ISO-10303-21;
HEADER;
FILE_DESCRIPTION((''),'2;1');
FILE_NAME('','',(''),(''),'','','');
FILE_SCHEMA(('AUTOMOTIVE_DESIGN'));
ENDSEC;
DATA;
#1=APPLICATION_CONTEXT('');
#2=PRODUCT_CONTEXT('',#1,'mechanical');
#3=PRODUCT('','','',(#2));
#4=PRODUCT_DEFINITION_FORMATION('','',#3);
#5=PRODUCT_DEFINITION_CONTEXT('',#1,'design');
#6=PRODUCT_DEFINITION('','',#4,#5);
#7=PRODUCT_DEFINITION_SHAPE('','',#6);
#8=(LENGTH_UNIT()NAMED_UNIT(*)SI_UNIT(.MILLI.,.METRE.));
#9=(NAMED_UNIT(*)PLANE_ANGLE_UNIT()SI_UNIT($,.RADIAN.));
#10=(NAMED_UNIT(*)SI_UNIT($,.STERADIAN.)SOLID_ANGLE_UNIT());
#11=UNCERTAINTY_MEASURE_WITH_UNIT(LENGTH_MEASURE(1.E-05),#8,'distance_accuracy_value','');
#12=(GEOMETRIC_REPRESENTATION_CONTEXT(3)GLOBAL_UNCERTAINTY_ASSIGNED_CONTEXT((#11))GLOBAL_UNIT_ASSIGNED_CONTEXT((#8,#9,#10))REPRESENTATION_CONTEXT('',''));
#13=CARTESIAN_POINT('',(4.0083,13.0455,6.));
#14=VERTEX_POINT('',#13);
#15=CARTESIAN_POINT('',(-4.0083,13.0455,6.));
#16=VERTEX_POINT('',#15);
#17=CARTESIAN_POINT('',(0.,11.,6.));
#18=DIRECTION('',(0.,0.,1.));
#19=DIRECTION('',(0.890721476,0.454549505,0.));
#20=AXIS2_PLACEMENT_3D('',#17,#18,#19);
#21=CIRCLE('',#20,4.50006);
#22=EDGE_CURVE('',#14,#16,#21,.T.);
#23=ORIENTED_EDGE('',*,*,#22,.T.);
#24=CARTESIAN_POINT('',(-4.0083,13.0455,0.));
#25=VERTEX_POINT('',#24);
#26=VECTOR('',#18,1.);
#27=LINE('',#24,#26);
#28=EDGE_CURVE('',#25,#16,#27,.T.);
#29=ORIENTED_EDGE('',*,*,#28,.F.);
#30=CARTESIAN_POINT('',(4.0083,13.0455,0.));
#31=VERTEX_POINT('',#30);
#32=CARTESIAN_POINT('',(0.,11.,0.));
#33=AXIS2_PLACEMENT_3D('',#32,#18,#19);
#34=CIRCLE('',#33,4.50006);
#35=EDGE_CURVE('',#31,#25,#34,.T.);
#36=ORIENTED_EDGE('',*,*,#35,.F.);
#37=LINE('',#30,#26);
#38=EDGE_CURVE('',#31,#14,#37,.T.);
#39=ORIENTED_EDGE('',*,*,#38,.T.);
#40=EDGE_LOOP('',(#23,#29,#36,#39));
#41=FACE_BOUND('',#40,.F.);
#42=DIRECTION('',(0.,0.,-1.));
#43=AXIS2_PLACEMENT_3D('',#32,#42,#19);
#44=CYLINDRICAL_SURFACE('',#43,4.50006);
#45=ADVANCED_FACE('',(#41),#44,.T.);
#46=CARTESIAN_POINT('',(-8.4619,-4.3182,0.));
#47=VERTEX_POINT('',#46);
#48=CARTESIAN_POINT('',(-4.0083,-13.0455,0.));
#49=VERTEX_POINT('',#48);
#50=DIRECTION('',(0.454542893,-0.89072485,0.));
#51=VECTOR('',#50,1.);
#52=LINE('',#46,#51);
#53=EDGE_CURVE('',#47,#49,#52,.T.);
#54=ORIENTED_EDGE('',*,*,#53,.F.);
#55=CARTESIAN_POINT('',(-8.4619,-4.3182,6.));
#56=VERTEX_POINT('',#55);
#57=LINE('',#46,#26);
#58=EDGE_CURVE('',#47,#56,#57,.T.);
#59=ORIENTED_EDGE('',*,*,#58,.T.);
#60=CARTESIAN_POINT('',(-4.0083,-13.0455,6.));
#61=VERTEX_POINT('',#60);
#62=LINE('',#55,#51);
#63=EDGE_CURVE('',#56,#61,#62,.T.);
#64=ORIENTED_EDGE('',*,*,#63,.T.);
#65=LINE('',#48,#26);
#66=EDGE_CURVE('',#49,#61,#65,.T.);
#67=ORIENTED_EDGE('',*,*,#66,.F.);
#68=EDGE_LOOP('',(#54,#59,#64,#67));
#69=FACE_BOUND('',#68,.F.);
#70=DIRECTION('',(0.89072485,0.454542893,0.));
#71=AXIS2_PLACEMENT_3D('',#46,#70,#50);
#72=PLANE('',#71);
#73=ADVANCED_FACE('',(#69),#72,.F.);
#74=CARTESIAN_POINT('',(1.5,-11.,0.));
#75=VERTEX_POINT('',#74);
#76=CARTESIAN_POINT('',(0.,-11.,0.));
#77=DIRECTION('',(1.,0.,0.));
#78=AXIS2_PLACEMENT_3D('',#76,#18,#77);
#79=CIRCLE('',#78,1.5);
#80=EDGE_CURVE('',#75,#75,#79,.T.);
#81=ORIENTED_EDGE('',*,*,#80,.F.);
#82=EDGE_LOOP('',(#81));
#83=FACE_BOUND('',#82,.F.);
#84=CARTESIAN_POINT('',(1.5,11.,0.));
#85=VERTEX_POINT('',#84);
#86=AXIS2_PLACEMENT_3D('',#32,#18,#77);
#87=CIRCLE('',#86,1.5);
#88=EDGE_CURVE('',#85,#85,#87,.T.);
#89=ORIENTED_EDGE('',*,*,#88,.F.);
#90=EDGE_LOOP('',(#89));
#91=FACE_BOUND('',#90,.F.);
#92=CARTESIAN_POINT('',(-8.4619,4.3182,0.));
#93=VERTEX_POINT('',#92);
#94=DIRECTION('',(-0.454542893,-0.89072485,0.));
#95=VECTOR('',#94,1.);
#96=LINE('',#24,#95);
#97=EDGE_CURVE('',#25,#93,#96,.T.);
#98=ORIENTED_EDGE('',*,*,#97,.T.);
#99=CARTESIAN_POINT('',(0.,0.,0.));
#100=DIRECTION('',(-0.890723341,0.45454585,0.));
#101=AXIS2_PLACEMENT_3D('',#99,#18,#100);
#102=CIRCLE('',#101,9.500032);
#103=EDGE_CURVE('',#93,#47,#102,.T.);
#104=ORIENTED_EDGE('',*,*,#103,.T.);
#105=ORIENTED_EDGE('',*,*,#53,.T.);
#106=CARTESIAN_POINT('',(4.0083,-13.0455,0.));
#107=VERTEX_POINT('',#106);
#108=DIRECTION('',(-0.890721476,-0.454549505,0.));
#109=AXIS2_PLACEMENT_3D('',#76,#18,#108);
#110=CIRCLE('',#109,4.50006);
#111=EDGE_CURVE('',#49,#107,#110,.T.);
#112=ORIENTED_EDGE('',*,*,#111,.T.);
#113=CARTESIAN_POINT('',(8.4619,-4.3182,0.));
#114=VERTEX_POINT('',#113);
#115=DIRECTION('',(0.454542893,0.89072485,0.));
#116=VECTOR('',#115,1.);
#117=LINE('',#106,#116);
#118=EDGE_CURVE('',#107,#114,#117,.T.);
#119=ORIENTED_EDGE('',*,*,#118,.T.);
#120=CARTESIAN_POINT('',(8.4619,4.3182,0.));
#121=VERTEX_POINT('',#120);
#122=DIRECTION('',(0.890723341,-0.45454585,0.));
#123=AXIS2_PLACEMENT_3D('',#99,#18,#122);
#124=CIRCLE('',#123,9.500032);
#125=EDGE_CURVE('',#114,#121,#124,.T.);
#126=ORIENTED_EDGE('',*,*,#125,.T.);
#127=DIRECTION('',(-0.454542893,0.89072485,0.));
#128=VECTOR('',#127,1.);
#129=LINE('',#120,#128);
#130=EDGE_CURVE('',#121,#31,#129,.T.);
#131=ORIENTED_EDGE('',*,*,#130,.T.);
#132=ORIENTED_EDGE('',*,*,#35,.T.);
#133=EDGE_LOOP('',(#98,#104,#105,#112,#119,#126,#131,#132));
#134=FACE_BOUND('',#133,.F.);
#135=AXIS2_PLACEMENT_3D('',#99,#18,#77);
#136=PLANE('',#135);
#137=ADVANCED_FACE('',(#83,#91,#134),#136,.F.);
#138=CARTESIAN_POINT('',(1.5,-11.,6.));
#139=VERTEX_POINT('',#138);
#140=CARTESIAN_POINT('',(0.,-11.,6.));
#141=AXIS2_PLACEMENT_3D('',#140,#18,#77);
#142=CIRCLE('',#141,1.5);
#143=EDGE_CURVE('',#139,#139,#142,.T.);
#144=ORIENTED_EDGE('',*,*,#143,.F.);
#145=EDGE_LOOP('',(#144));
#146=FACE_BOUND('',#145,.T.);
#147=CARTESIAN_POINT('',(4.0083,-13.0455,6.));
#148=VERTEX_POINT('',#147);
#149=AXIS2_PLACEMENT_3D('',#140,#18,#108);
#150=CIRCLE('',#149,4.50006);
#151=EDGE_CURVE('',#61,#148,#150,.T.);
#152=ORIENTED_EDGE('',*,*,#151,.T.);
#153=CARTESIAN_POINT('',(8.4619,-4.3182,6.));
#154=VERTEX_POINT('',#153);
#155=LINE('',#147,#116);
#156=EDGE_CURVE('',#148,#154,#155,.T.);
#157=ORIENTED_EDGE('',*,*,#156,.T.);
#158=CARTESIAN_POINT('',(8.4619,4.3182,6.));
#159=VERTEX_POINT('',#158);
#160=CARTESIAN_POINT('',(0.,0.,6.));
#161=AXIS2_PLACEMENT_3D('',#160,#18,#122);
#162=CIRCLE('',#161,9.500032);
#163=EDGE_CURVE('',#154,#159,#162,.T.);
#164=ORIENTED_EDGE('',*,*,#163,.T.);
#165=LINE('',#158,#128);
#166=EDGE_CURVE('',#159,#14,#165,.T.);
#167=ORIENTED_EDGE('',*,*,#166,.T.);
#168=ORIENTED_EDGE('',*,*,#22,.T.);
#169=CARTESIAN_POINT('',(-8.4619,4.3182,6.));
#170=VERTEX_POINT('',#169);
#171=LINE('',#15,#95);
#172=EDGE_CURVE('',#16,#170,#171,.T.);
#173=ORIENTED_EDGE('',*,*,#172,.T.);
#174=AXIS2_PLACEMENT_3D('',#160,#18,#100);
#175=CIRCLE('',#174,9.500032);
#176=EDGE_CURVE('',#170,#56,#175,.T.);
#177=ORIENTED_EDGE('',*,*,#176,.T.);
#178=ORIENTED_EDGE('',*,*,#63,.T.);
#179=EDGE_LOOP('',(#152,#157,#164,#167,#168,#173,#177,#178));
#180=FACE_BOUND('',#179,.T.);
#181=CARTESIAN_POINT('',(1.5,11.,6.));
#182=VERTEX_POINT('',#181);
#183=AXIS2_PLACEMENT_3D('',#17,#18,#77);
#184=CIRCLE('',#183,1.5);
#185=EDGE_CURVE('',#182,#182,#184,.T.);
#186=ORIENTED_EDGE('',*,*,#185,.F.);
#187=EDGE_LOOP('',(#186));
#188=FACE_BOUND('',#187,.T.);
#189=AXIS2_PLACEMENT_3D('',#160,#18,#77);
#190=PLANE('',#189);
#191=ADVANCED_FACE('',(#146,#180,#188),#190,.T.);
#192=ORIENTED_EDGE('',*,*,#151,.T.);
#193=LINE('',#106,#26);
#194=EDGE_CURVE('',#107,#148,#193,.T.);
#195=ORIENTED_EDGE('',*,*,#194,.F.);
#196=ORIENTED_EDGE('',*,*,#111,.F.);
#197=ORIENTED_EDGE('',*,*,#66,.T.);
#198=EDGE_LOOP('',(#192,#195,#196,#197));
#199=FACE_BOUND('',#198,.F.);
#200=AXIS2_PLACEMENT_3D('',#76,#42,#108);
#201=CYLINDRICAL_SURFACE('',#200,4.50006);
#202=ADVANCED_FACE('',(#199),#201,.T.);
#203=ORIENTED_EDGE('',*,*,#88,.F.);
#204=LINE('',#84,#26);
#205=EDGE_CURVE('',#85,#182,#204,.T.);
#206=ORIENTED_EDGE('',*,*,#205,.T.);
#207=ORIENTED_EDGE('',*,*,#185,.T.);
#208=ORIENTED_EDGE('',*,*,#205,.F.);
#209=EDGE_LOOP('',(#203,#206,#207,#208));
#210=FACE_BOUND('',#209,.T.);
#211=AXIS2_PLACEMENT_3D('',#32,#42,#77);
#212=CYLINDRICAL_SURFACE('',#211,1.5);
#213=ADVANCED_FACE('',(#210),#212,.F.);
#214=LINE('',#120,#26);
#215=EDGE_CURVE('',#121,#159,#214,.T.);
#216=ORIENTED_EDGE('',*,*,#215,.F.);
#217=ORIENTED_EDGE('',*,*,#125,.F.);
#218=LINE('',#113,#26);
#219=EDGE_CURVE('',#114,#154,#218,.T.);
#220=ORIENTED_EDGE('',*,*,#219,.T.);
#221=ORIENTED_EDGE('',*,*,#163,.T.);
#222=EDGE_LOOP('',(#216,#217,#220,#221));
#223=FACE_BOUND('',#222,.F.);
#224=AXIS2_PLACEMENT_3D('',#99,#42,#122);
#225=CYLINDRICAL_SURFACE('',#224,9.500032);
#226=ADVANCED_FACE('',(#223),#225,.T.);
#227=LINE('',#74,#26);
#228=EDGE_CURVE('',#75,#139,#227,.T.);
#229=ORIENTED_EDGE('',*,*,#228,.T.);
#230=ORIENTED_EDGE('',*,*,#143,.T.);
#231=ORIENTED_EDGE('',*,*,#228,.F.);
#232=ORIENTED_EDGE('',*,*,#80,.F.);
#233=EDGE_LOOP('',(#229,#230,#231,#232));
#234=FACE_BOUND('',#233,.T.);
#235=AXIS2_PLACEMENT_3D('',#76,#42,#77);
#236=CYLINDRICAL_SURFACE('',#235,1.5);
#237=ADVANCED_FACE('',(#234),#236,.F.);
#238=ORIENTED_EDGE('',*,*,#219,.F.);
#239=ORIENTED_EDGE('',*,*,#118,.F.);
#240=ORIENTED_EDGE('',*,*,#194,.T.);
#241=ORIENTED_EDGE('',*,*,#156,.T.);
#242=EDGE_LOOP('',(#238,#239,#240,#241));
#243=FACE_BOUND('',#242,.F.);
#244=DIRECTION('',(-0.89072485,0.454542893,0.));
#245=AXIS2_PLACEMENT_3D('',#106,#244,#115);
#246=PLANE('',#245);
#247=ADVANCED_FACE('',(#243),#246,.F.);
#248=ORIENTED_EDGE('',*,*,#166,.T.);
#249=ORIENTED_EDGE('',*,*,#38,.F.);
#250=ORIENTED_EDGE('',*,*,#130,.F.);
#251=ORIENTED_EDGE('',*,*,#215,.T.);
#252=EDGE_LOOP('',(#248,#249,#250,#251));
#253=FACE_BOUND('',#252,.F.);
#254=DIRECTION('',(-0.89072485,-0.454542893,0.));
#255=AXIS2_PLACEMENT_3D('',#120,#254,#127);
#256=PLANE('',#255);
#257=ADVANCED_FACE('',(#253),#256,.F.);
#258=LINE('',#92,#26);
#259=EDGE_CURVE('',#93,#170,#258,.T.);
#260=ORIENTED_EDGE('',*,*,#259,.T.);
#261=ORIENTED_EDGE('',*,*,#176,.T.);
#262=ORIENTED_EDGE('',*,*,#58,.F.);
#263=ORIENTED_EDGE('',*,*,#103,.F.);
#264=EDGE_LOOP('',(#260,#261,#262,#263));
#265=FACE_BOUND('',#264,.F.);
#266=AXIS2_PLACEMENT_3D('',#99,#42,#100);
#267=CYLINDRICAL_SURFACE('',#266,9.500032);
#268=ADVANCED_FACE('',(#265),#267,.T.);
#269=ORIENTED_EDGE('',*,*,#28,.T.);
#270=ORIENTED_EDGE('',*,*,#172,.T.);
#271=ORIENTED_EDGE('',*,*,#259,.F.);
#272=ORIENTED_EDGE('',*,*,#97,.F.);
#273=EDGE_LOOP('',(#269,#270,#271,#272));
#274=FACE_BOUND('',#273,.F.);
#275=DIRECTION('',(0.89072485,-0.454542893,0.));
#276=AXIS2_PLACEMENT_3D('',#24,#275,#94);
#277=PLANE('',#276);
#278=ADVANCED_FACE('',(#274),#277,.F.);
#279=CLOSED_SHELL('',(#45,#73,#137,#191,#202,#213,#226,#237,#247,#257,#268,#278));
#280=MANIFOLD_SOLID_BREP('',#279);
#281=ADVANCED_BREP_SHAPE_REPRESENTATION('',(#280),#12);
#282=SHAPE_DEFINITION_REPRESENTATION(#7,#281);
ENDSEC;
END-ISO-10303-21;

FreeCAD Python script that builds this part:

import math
import FreeCAD as App
import Part
import Sketcher
from FreeCAD import Vector

doc = App.newDocument("Part")
params = doc.addObject("Spreadsheet::Sheet", "Params")
for row, (alias, value) in enumerate([
    ("sketch1_diameter", "3 mm"),
    ("sketch1_radius", "9.5 mm"),
    ("sketch1_radius2", "4.5 mm"),
    ("pad1_length", "6 mm"),
], start=1):
    params.set(f"A{row}", alias)
    params.set(f"B{row}", "=" + value)
    params.setAlias(f"B{row}", alias)

body = doc.addObject("PartDesign::Body", "Body")

# Sketch on XY plane
sketch1 = body.newObject("Sketcher::SketchObject", "Sketch")
sketch1.AttachmentSupport = (doc.getObject("XY_Plane"), [""])
sketch1.MapMode = "FlatFace"
sketch1.addGeometry(Part.ArcOfCircle(Part.Circle(Vector(0, 0, 0), Vector(0, 0, 1), 9.5), math.radians(153), math.radians(207)), False)
sketch1.addGeometry(Part.LineSegment(Vector(-8.5, -4.3, 0), Vector(-4, -13, 0)), False)
sketch1.addGeometry(Part.ArcOfCircle(Part.Circle(Vector(0, -11, 0), Vector(0, 0, 1), 4.5), math.radians(-153), math.radians(-27)), False)
sketch1.addGeometry(Part.LineSegment(Vector(4, -13, 0), Vector(8.5, -4.3, 0)), False)
sketch1.addGeometry(Part.ArcOfCircle(Part.Circle(Vector(0, 0, 0), Vector(0, 0, 1), 9.5), math.radians(-27), math.radians(27)), False)
sketch1.addGeometry(Part.LineSegment(Vector(8.5, 4.3, 0), Vector(4, 13, 0)), False)
sketch1.addGeometry(Part.ArcOfCircle(Part.Circle(Vector(0, 11, 0), Vector(0, 0, 1), 4.5), math.radians(27), math.radians(153)), False)
sketch1.addGeometry(Part.LineSegment(Vector(-4, 13, 0), Vector(-8.5, 4.3, 0)), False)
sketch1.addGeometry(Part.Circle(Vector(0, -11, 0), Vector(0, 0, 1), 1.5), False)
sketch1.addGeometry(Part.Circle(Vector(0, 11, 0), Vector(0, 0, 1), 1.5), False)
sketch1.addConstraint(Sketcher.Constraint("Tangent", 0, 2, 1, 1))
sketch1.addConstraint(Sketcher.Constraint("Tangent", 1, 2, 2, 1))
sketch1.addConstraint(Sketcher.Constraint("Tangent", 2, 2, 3, 1))
sketch1.addConstraint(Sketcher.Constraint("Tangent", 3, 2, 4, 1))
sketch1.addConstraint(Sketcher.Constraint("Tangent", 4, 2, 5, 1))
sketch1.addConstraint(Sketcher.Constraint("Tangent", 5, 2, 6, 1))
sketch1.addConstraint(Sketcher.Constraint("Tangent", 6, 2, 7, 1))
sketch1.addConstraint(Sketcher.Constraint("Tangent", 7, 2, 0, 1))
sketch1.addConstraint(Sketcher.Constraint("Coincident", 0, 3, -1, 1))
sketch1.addConstraint(Sketcher.Constraint("Coincident", 4, 3, -1, 1))
sketch1.addConstraint(Sketcher.Constraint("Coincident", 8, 3, 2, 3))
sketch1.addConstraint(Sketcher.Constraint("Coincident", 9, 3, 6, 3))
sketch1.addConstraint(Sketcher.Constraint("Equal", 0, 4))
sketch1.addConstraint(Sketcher.Constraint("Equal", 2, 6))
sketch1.addConstraint(Sketcher.Constraint("Equal", 8, 9))
sketch1.addConstraint(Sketcher.Constraint("Symmetric", 2, 3, 6, 3, -1, 1))
sketch1.addConstraint(Sketcher.Constraint("PointOnObject", 2, 3, -2))
sketch1.addConstraint(Sketcher.Constraint("Diameter", 8, 3.0))
sketch1.addConstraint(Sketcher.Constraint("Radius", 0, 9.5))
sketch1.addConstraint(Sketcher.Constraint("Radius", 2, 4.5))
sketch1.addConstraint(Sketcher.Constraint("DistanceY", 2, 3, -1, 1, 11.0))
sketch1.setExpression("Constraints[17]", "Params.sketch1_diameter")
sketch1.setExpression("Constraints[18]", "Params.sketch1_radius")
sketch1.setExpression("Constraints[19]", "Params.sketch1_radius2")
pad1 = body.newObject("PartDesign::Pad", "Pad")
pad1.Profile = sketch1
pad1.setExpression("Length", "Params.pad1_length")

doc.recompute()
